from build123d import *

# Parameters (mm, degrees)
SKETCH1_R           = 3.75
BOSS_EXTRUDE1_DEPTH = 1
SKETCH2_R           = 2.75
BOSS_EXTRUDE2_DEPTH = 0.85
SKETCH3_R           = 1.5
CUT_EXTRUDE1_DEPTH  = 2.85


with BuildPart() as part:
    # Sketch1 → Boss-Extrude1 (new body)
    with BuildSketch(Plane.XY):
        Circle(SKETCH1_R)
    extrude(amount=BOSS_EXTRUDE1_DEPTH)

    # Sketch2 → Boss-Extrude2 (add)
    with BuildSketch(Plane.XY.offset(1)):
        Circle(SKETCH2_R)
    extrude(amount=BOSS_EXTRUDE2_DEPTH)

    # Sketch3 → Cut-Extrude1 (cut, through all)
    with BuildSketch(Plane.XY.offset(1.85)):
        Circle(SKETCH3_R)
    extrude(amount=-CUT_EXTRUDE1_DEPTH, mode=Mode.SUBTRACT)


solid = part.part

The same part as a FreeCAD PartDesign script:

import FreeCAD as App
import Part
import Sketcher
Q = App.Units.Quantity

doc = App.newDocument("Part")
body = doc.addObject("PartDesign::Body", "Body")

# Sketch on XY plane
sketch1 = body.newObject("Sketcher::SketchObject", "Sketch")
sketch1.AttachmentSupport = (doc.getObject("XY_Plane"), [""])
sketch1.MapMode = "FlatFace"
sketch1.addGeometry(Part.Circle(App.Vector(0, 0, 0), App.Vector(0, 0, 1), 3.8), False)
sketch1.addConstraint(Sketcher.Constraint("Coincident", 0, 3, -1, 1))
sketch1.addConstraint(Sketcher.Constraint("Diameter", 0, Q("7.5 mm")))
pad1 = body.newObject("PartDesign::Pad", "Pad")
pad1.Profile = sketch1
pad1.Length = 1

# Sketch on XY plane
sketch2 = body.newObject("Sketcher::SketchObject", "Sketch001")
sketch2.AttachmentSupport = (doc.getObject("XY_Plane"), [""])
sketch2.MapMode = "FlatFace"
sketch2.AttachmentOffset = App.Placement(App.Vector(0, 0, 1), App.Rotation())
sketch2.addGeometry(Part.Circle(App.Vector(0, 0, 0), App.Vector(0, 0, 1), 2.8), False)
sketch2.addConstraint(Sketcher.Constraint("Coincident", 0, 3, -1, 1))
sketch2.addConstraint(Sketcher.Constraint("Diameter", 0, Q("5.5 mm")))
pad2 = body.newObject("PartDesign::Pad", "Pad001")
pad2.Profile = sketch2
pad2.Length = 0.85

# Sketch on XY plane
sketch3 = body.newObject("Sketcher::SketchObject", "Sketch002")
sketch3.AttachmentSupport = (doc.getObject("XY_Plane"), [""])
sketch3.MapMode = "FlatFace"
sketch3.AttachmentOffset = App.Placement(App.Vector(0, 0, 1.85), App.Rotation())
sketch3.addGeometry(Part.Circle(App.Vector(0, 0, 0), App.Vector(0, 0, 1), 1.5), False)
sketch3.addConstraint(Sketcher.Constraint("Coincident", 0, 3, -1, 1))
sketch3.addConstraint(Sketcher.Constraint("Diameter", 0, Q("3 mm")))
pocket1 = body.newObject("PartDesign::Pocket", "Pocket")
pocket1.Profile = sketch3
pocket1.Type = "ThroughAll"

doc.recompute()
